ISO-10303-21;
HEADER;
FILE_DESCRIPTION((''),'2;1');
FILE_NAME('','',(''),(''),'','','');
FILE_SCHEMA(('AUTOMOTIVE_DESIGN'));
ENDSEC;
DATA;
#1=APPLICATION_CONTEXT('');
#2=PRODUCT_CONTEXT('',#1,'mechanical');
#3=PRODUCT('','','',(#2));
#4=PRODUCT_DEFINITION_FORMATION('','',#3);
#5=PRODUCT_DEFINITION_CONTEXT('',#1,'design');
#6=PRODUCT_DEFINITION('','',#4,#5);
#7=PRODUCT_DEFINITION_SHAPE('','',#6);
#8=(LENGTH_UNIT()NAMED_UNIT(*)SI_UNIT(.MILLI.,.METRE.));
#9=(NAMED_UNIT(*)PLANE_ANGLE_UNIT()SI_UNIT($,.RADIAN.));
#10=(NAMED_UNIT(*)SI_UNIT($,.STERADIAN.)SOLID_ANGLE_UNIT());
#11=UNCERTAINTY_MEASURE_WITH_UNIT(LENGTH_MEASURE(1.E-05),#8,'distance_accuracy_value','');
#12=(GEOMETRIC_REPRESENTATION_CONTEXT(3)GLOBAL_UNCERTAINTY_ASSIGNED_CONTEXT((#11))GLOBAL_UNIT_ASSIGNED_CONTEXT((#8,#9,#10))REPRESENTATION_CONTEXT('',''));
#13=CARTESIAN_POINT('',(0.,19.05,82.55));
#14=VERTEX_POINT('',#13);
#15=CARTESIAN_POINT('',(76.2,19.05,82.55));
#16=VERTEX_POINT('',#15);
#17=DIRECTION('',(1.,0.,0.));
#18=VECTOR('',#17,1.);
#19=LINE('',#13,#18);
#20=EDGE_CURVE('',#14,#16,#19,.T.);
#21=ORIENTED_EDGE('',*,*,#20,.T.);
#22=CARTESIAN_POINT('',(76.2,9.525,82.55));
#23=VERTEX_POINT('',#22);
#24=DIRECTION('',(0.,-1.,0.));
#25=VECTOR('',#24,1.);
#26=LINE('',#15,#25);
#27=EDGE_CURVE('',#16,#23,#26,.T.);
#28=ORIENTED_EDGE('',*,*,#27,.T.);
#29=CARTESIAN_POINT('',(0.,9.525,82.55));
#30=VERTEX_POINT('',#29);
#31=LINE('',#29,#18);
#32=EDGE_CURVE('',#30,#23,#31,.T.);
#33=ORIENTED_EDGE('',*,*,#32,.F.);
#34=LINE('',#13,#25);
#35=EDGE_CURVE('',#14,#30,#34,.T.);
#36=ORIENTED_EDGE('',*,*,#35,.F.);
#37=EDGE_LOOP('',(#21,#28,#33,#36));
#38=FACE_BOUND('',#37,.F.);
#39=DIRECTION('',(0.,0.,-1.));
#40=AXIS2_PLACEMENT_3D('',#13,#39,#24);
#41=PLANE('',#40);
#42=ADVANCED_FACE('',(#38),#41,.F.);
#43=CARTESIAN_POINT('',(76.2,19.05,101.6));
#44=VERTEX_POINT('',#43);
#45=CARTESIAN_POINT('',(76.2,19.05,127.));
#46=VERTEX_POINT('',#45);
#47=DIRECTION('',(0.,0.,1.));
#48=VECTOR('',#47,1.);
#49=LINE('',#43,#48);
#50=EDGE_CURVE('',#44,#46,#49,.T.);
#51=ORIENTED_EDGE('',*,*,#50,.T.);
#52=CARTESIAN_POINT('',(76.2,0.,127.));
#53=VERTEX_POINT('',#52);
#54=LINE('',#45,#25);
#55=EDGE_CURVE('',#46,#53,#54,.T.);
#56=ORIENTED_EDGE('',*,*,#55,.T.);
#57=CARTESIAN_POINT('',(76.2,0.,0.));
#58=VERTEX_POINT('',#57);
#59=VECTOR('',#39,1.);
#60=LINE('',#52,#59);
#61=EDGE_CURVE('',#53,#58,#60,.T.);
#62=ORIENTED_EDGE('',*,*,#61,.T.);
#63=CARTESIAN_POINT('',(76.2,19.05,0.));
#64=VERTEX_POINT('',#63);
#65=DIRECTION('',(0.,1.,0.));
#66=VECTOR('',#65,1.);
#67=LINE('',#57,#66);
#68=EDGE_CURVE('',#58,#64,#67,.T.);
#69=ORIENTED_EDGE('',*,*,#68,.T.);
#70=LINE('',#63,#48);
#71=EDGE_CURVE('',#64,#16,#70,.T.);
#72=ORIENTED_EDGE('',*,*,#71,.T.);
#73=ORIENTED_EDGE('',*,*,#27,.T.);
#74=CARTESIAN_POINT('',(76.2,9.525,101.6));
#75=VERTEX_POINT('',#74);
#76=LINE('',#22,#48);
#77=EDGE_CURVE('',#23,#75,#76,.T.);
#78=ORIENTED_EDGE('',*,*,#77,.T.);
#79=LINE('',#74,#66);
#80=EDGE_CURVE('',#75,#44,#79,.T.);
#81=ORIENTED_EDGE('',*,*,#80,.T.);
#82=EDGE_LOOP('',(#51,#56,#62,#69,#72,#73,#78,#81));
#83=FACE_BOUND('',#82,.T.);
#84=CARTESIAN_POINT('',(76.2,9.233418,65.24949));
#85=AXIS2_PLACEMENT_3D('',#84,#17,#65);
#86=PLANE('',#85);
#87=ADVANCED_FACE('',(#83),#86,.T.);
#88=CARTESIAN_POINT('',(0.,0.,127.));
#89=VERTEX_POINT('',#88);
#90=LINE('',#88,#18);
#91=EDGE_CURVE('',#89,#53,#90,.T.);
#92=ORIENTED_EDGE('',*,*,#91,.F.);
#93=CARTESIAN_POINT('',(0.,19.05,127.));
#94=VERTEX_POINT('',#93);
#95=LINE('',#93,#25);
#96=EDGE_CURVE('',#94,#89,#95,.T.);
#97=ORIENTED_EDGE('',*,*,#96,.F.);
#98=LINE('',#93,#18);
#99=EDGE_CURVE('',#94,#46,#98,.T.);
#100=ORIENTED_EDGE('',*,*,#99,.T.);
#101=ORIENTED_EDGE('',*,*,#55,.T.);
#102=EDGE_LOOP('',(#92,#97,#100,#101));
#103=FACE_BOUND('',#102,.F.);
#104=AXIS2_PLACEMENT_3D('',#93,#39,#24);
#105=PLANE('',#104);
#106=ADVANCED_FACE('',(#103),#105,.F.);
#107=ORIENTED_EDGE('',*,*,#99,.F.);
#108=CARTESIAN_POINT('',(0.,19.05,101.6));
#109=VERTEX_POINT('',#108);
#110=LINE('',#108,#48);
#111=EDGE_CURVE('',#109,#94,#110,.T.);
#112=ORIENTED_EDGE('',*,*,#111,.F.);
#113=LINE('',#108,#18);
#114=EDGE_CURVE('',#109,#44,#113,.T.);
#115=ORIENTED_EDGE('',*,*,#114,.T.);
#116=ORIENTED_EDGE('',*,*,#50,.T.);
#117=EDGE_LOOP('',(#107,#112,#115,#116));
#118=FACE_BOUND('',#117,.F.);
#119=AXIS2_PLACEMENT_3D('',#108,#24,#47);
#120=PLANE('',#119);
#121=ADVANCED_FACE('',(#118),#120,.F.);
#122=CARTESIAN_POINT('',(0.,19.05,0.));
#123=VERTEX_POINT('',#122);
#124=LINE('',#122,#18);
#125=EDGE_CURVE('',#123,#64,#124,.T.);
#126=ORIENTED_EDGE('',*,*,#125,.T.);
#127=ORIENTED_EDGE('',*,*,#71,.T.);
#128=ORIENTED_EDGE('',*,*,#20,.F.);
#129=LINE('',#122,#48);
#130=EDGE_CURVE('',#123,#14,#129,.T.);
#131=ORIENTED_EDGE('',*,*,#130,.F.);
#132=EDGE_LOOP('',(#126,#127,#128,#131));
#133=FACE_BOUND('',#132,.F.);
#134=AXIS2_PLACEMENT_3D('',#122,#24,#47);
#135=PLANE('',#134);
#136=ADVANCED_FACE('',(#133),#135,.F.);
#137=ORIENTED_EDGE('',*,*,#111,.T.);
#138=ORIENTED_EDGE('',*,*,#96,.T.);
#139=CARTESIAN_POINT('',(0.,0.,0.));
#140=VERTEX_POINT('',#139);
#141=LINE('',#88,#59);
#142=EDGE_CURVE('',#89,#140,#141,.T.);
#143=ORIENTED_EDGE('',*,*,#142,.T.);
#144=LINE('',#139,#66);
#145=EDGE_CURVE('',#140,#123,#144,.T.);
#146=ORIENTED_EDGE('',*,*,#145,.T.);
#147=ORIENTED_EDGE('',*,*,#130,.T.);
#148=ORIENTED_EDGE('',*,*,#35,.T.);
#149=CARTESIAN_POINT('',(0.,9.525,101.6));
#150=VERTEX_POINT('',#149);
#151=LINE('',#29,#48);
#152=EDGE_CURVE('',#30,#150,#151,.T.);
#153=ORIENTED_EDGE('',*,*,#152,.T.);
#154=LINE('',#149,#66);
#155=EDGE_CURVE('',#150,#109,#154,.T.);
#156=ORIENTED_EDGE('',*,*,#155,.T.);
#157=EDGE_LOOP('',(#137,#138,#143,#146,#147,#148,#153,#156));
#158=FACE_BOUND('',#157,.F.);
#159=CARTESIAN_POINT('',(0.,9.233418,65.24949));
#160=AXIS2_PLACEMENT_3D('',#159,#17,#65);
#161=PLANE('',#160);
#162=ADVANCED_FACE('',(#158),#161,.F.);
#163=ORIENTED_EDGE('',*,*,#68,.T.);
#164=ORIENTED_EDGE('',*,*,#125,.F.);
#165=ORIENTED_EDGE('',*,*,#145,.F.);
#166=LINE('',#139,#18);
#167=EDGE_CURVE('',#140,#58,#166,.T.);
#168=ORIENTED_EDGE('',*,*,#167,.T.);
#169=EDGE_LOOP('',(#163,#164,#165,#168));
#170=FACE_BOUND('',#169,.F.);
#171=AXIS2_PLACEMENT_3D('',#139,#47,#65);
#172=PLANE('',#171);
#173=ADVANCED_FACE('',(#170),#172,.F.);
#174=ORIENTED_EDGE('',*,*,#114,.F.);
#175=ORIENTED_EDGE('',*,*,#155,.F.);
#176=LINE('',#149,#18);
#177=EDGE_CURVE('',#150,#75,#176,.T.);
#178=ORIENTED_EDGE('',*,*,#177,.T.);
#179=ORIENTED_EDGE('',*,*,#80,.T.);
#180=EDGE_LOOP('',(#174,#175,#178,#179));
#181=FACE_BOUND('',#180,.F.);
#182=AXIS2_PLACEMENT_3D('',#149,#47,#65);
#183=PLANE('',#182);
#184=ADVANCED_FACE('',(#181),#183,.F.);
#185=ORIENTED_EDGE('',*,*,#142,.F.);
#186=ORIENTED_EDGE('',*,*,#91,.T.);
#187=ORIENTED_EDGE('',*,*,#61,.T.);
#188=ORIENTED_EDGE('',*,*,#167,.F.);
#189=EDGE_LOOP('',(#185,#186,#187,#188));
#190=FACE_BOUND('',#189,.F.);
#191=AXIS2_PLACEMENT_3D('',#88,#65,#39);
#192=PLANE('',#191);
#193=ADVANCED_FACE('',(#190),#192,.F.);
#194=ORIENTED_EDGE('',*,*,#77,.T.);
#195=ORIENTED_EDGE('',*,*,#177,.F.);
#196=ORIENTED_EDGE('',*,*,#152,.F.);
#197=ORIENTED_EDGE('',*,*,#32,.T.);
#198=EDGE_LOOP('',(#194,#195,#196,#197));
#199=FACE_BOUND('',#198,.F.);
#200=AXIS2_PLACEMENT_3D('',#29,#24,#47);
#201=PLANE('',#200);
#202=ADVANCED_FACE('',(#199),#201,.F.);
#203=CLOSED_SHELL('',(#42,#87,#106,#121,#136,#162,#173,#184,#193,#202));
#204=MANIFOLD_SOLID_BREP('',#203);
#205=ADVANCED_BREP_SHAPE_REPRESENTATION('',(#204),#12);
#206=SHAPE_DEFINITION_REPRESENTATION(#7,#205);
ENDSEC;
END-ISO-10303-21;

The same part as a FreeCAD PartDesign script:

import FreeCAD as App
import Part
import Sketcher
Q = App.Units.Quantity


def add_polygon(sketch, points):
    """Adds a closed chain of lines whose ends are joined by coincident constraints."""
    first, n = sketch.GeometryCount, len(points)
    for a, b in zip(points, points[1:] + points[:1]):
        sketch.addGeometry(Part.LineSegment(App.Vector(*a, 0), App.Vector(*b, 0)), False)
    for i in range(n):
        sketch.addConstraint(Sketcher.Constraint("Coincident", first + i, 2, first + (i + 1) % n, 1))

doc = App.newDocument("Part")
body = doc.addObject("PartDesign::Body", "Body")

# Sketch on YZ plane
sketch1 = body.newObject("Sketcher::SketchObject", "Sketch")
sketch1.AttachmentSupport = (doc.getObject("YZ_Plane"), [""])
sketch1.MapMode = "FlatFace"
add_polygon(sketch1, [(0, 127), (0, 0), (19, 0), (19, 83), (10, 83), (10, 102), (19, 102), (19, 127)])  # lines 0-7
sketch1.addConstraint([
    Sketcher.Constraint("Vertical", 0),
    Sketcher.Constraint("Horizontal", 1),
    Sketcher.Constraint("Vertical", 2),
    Sketcher.Constraint("Horizontal", 3),
    Sketcher.Constraint("Vertical", 4),
    Sketcher.Constraint("Horizontal", 5),
    Sketcher.Constraint("Vertical", 6),
    Sketcher.Constraint("Horizontal", 7),
    Sketcher.Constraint("Coincident", 0, 2, -1, 1),
    Sketcher.Constraint("Vertical", 2, 2, 5, 2),
    Sketcher.Constraint("Equal", 7, 4),
    Sketcher.Constraint("DistanceY", 0, 2, 0, 1, Q("5 in")),
    Sketcher.Constraint("DistanceY", 6, 1, 6, 2, Q("1 in")),
    Sketcher.Constraint("DistanceX", 1, 1, 1, 2, Q("0.75 in")),
    Sketcher.Constraint("DistanceX", 3, 2, 3, 1, Q("0.375 in")),
])
pad1 = body.newObject("PartDesign::Pad", "Pad")
pad1.Profile = sketch1
pad1.Length = Q("3 in")

doc.recompute()
